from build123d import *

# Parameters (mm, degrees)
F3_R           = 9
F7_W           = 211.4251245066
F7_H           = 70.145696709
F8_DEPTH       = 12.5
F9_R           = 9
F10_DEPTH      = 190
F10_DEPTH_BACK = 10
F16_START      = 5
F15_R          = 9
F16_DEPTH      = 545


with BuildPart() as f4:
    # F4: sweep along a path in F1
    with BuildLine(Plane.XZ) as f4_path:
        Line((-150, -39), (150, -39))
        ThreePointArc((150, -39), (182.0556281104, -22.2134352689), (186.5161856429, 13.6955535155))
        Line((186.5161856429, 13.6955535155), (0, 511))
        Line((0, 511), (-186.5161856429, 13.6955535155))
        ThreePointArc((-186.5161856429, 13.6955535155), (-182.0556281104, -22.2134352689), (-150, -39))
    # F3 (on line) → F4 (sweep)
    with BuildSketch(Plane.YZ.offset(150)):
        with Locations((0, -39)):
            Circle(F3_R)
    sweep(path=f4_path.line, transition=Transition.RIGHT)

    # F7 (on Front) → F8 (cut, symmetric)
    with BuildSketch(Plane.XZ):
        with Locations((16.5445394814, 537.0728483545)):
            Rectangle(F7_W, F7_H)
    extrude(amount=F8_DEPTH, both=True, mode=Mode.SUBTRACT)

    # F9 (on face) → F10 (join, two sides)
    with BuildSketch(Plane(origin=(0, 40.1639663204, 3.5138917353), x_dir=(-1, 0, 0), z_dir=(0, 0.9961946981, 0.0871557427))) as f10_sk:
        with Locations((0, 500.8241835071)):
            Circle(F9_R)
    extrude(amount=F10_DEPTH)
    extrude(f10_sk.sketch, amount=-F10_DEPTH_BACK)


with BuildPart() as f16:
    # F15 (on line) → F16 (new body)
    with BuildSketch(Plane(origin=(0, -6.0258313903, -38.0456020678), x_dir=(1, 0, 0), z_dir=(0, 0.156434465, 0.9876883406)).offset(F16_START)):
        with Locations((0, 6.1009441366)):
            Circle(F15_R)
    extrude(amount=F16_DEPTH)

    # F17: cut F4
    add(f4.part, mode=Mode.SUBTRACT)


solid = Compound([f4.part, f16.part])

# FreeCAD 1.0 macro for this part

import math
import FreeCAD as App
import Part
import Sketcher


def add_polygon(sketch, points):
    """Adds a closed chain of lines whose ends are joined by coincident constraints."""
    first, n = sketch.GeometryCount, len(points)
    for a, b in zip(points, points[1:] + points[:1]):
        sketch.addGeometry(Part.LineSegment(App.Vector(*a, 0), App.Vector(*b, 0)), False)
    for i in range(n):
        sketch.addConstraint(Sketcher.Constraint("Coincident", first + i, 2, first + (i + 1) % n, 1))

doc = App.newDocument("Part")
body = doc.addObject("PartDesign::Body", "Body")

sketch1 = body.newObject("Sketcher::SketchObject", "Sketch")
sketch1.AttachmentSupport = (doc.getObject("YZ_Plane"), [""])
sketch1.MapMode = "FlatFace"
sketch1.AttachmentOffset = App.Placement(App.Vector(0, 0, 150), App.Rotation())
sketch1.addGeometry(Part.Circle(App.Vector(0, -39, 0), App.Vector(0, 0, 1), 9), False)
sketch1.addConstraint([
    Sketcher.Constraint("PointOnObject", 0, 3, -2),
    Sketcher.Constraint("Diameter", 0, 18.0),
    Sketcher.Constraint("DistanceY", 0, 3, -1, 1, 39.0),
])

sketch2 = body.newObject("Sketcher::SketchObject", "Sketch001")
sketch2.AttachmentSupport = (doc.getObject("XZ_Plane"), [""])
sketch2.MapMode = "FlatFace"
sketch2.addGeometry([
    Part.LineSegment(App.Vector(-150, -39, 0), App.Vector(150, -39, 0)),
    Part.ArcOfCircle(Part.Circle(App.Vector(150, 0, 0), App.Vector(0, 0, 1), 39), math.radians(-90), math.radians(21)),
    Part.LineSegment(App.Vector(187, 14, 0), App.Vector(0, 511, 0)),
    Part.LineSegment(App.Vector(0, 511, 0), App.Vector(-187, 14, 0)),
    Part.ArcOfCircle(Part.Circle(App.Vector(-150, 0, 0), App.Vector(0, 0, 1), 39), math.radians(159), math.radians(270)),
], False)
sketch2.addConstraint([
    Sketcher.Constraint("Tangent", 0, 2, 1, 1),
    Sketcher.Constraint("Tangent", 1, 2, 2, 1),
    Sketcher.Constraint("Coincident", 2, 2, 3, 1),
    Sketcher.Constraint("Tangent", 3, 2, 4, 1),
    Sketcher.Constraint("Tangent", 4, 2, 0, 1),
    Sketcher.Constraint("Horizontal", 0),
    Sketcher.Constraint("Equal", 1, 4),
    Sketcher.Constraint("Symmetric", 1, 3, 4, 3, -1, 1),
    Sketcher.Constraint("PointOnObject", 2, 2, -2),
    Sketcher.Constraint("Radius", 1, 39.0),
    Sketcher.Constraint("DistanceX", 0, 1, 0, 2, 300.0),
    Sketcher.Constraint("DistanceY", -1, 1, 2, 2, 511.0),
])
doc.recompute()

additivepipe = body.newObject("PartDesign::AdditivePipe", "AdditivePipe")
additivepipe.Profile = sketch1
additivepipe.Spine = (sketch2, ["Edge1", "Edge2", "Edge3", "Edge4", "Edge5"])
additivepipe.Transition = "Right corner"

sketch3 = body.newObject("Sketcher::SketchObject", "Sketch002")
sketch3.AttachmentSupport = (doc.getObject("XZ_Plane"), [""])
sketch3.MapMode = "FlatFace"
add_polygon(sketch3, [(-89, 572), (-89, 502), (122, 502), (122, 572)])
sketch3.addConstraint([
    Sketcher.Constraint("Vertical", 0),
    Sketcher.Constraint("Horizontal", 1),
    Sketcher.Constraint("Vertical", 2),
    Sketcher.Constraint("Horizontal", 3),
    Sketcher.Constraint("DistanceY", -1, 1, 0, 2, 502.0),
    Sketcher.Constraint("DistanceX", -1, 1, 1, 2, 122.257102),
    Sketcher.Constraint("DistanceX", 1, 1, 1, 2, 211.425125),
    Sketcher.Constraint("DistanceY", 0, 2, 0, 1, 70.145697),
])
pocket1 = body.newObject("PartDesign::Pocket", "Pocket")
pocket1.Profile = sketch3
pocket1.Length = 25
pocket1.Midplane = True

sketch4 = body.newObject("Sketcher::SketchObject", "Sketch003")
sketch4.Placement = App.Placement(App.Vector(0, 40.163966, 3.513892), App.Rotation(App.Vector(-1, 0, 0), App.Vector(0, -0.087155743, 0.996194698), App.Vector(0, 0.996194698, 0.087155743), "ZXY"))
sketch4.addGeometry(Part.Circle(App.Vector(0, 501, 0), App.Vector(0, 0, 1), 9), False)
sketch4.addConstraint([
    Sketcher.Constraint("PointOnObject", 0, 3, -2),
    Sketcher.Constraint("Diameter", 0, 18.0),
    Sketcher.Constraint("DistanceY", -1, 1, 0, 3, 500.824183),
])
pad1 = body.newObject("PartDesign::Pad", "Pad")
pad1.Profile = sketch4
pad1.Type = "TwoLengths"
pad1.Length = 190
pad1.Length2 = 10
body2 = doc.addObject("PartDesign::Body", "Body001")

sketch5 = body2.newObject("Sketcher::SketchObject", "Sketch004")
sketch5.Placement = App.Placement(App.Vector(0, -5.243659, -33.10716), App.Rotation(App.Vector(1, 0, 0), App.Vector(0, 0.987688341, -0.156434465), App.Vector(0, 0.156434465, 0.987688341), "ZXY"))
sketch5.addGeometry(Part.Circle(App.Vector(0, 6, 0), App.Vector(0, 0, 1), 9), False)
sketch5.addConstraint([
    Sketcher.Constraint("PointOnObject", 0, 3, -2),
    Sketcher.Constraint("Diameter", 0, 18.0),
    Sketcher.Constraint("DistanceY", -1, 1, 0, 3, 6.100944),
])
pad2 = body2.newObject("PartDesign::Pad", "Pad001")
pad2.Profile = sketch5
pad2.Length = 545
doc.recompute()

body3 = doc.addObject("PartDesign::Body", "Body002")
body3.BaseFeature = body
boolean = body2.newObject("PartDesign::Boolean", "Boolean")
boolean.Type = "Cut"
boolean.addObjects([body3])
doc.recompute()

doc.recompute()
